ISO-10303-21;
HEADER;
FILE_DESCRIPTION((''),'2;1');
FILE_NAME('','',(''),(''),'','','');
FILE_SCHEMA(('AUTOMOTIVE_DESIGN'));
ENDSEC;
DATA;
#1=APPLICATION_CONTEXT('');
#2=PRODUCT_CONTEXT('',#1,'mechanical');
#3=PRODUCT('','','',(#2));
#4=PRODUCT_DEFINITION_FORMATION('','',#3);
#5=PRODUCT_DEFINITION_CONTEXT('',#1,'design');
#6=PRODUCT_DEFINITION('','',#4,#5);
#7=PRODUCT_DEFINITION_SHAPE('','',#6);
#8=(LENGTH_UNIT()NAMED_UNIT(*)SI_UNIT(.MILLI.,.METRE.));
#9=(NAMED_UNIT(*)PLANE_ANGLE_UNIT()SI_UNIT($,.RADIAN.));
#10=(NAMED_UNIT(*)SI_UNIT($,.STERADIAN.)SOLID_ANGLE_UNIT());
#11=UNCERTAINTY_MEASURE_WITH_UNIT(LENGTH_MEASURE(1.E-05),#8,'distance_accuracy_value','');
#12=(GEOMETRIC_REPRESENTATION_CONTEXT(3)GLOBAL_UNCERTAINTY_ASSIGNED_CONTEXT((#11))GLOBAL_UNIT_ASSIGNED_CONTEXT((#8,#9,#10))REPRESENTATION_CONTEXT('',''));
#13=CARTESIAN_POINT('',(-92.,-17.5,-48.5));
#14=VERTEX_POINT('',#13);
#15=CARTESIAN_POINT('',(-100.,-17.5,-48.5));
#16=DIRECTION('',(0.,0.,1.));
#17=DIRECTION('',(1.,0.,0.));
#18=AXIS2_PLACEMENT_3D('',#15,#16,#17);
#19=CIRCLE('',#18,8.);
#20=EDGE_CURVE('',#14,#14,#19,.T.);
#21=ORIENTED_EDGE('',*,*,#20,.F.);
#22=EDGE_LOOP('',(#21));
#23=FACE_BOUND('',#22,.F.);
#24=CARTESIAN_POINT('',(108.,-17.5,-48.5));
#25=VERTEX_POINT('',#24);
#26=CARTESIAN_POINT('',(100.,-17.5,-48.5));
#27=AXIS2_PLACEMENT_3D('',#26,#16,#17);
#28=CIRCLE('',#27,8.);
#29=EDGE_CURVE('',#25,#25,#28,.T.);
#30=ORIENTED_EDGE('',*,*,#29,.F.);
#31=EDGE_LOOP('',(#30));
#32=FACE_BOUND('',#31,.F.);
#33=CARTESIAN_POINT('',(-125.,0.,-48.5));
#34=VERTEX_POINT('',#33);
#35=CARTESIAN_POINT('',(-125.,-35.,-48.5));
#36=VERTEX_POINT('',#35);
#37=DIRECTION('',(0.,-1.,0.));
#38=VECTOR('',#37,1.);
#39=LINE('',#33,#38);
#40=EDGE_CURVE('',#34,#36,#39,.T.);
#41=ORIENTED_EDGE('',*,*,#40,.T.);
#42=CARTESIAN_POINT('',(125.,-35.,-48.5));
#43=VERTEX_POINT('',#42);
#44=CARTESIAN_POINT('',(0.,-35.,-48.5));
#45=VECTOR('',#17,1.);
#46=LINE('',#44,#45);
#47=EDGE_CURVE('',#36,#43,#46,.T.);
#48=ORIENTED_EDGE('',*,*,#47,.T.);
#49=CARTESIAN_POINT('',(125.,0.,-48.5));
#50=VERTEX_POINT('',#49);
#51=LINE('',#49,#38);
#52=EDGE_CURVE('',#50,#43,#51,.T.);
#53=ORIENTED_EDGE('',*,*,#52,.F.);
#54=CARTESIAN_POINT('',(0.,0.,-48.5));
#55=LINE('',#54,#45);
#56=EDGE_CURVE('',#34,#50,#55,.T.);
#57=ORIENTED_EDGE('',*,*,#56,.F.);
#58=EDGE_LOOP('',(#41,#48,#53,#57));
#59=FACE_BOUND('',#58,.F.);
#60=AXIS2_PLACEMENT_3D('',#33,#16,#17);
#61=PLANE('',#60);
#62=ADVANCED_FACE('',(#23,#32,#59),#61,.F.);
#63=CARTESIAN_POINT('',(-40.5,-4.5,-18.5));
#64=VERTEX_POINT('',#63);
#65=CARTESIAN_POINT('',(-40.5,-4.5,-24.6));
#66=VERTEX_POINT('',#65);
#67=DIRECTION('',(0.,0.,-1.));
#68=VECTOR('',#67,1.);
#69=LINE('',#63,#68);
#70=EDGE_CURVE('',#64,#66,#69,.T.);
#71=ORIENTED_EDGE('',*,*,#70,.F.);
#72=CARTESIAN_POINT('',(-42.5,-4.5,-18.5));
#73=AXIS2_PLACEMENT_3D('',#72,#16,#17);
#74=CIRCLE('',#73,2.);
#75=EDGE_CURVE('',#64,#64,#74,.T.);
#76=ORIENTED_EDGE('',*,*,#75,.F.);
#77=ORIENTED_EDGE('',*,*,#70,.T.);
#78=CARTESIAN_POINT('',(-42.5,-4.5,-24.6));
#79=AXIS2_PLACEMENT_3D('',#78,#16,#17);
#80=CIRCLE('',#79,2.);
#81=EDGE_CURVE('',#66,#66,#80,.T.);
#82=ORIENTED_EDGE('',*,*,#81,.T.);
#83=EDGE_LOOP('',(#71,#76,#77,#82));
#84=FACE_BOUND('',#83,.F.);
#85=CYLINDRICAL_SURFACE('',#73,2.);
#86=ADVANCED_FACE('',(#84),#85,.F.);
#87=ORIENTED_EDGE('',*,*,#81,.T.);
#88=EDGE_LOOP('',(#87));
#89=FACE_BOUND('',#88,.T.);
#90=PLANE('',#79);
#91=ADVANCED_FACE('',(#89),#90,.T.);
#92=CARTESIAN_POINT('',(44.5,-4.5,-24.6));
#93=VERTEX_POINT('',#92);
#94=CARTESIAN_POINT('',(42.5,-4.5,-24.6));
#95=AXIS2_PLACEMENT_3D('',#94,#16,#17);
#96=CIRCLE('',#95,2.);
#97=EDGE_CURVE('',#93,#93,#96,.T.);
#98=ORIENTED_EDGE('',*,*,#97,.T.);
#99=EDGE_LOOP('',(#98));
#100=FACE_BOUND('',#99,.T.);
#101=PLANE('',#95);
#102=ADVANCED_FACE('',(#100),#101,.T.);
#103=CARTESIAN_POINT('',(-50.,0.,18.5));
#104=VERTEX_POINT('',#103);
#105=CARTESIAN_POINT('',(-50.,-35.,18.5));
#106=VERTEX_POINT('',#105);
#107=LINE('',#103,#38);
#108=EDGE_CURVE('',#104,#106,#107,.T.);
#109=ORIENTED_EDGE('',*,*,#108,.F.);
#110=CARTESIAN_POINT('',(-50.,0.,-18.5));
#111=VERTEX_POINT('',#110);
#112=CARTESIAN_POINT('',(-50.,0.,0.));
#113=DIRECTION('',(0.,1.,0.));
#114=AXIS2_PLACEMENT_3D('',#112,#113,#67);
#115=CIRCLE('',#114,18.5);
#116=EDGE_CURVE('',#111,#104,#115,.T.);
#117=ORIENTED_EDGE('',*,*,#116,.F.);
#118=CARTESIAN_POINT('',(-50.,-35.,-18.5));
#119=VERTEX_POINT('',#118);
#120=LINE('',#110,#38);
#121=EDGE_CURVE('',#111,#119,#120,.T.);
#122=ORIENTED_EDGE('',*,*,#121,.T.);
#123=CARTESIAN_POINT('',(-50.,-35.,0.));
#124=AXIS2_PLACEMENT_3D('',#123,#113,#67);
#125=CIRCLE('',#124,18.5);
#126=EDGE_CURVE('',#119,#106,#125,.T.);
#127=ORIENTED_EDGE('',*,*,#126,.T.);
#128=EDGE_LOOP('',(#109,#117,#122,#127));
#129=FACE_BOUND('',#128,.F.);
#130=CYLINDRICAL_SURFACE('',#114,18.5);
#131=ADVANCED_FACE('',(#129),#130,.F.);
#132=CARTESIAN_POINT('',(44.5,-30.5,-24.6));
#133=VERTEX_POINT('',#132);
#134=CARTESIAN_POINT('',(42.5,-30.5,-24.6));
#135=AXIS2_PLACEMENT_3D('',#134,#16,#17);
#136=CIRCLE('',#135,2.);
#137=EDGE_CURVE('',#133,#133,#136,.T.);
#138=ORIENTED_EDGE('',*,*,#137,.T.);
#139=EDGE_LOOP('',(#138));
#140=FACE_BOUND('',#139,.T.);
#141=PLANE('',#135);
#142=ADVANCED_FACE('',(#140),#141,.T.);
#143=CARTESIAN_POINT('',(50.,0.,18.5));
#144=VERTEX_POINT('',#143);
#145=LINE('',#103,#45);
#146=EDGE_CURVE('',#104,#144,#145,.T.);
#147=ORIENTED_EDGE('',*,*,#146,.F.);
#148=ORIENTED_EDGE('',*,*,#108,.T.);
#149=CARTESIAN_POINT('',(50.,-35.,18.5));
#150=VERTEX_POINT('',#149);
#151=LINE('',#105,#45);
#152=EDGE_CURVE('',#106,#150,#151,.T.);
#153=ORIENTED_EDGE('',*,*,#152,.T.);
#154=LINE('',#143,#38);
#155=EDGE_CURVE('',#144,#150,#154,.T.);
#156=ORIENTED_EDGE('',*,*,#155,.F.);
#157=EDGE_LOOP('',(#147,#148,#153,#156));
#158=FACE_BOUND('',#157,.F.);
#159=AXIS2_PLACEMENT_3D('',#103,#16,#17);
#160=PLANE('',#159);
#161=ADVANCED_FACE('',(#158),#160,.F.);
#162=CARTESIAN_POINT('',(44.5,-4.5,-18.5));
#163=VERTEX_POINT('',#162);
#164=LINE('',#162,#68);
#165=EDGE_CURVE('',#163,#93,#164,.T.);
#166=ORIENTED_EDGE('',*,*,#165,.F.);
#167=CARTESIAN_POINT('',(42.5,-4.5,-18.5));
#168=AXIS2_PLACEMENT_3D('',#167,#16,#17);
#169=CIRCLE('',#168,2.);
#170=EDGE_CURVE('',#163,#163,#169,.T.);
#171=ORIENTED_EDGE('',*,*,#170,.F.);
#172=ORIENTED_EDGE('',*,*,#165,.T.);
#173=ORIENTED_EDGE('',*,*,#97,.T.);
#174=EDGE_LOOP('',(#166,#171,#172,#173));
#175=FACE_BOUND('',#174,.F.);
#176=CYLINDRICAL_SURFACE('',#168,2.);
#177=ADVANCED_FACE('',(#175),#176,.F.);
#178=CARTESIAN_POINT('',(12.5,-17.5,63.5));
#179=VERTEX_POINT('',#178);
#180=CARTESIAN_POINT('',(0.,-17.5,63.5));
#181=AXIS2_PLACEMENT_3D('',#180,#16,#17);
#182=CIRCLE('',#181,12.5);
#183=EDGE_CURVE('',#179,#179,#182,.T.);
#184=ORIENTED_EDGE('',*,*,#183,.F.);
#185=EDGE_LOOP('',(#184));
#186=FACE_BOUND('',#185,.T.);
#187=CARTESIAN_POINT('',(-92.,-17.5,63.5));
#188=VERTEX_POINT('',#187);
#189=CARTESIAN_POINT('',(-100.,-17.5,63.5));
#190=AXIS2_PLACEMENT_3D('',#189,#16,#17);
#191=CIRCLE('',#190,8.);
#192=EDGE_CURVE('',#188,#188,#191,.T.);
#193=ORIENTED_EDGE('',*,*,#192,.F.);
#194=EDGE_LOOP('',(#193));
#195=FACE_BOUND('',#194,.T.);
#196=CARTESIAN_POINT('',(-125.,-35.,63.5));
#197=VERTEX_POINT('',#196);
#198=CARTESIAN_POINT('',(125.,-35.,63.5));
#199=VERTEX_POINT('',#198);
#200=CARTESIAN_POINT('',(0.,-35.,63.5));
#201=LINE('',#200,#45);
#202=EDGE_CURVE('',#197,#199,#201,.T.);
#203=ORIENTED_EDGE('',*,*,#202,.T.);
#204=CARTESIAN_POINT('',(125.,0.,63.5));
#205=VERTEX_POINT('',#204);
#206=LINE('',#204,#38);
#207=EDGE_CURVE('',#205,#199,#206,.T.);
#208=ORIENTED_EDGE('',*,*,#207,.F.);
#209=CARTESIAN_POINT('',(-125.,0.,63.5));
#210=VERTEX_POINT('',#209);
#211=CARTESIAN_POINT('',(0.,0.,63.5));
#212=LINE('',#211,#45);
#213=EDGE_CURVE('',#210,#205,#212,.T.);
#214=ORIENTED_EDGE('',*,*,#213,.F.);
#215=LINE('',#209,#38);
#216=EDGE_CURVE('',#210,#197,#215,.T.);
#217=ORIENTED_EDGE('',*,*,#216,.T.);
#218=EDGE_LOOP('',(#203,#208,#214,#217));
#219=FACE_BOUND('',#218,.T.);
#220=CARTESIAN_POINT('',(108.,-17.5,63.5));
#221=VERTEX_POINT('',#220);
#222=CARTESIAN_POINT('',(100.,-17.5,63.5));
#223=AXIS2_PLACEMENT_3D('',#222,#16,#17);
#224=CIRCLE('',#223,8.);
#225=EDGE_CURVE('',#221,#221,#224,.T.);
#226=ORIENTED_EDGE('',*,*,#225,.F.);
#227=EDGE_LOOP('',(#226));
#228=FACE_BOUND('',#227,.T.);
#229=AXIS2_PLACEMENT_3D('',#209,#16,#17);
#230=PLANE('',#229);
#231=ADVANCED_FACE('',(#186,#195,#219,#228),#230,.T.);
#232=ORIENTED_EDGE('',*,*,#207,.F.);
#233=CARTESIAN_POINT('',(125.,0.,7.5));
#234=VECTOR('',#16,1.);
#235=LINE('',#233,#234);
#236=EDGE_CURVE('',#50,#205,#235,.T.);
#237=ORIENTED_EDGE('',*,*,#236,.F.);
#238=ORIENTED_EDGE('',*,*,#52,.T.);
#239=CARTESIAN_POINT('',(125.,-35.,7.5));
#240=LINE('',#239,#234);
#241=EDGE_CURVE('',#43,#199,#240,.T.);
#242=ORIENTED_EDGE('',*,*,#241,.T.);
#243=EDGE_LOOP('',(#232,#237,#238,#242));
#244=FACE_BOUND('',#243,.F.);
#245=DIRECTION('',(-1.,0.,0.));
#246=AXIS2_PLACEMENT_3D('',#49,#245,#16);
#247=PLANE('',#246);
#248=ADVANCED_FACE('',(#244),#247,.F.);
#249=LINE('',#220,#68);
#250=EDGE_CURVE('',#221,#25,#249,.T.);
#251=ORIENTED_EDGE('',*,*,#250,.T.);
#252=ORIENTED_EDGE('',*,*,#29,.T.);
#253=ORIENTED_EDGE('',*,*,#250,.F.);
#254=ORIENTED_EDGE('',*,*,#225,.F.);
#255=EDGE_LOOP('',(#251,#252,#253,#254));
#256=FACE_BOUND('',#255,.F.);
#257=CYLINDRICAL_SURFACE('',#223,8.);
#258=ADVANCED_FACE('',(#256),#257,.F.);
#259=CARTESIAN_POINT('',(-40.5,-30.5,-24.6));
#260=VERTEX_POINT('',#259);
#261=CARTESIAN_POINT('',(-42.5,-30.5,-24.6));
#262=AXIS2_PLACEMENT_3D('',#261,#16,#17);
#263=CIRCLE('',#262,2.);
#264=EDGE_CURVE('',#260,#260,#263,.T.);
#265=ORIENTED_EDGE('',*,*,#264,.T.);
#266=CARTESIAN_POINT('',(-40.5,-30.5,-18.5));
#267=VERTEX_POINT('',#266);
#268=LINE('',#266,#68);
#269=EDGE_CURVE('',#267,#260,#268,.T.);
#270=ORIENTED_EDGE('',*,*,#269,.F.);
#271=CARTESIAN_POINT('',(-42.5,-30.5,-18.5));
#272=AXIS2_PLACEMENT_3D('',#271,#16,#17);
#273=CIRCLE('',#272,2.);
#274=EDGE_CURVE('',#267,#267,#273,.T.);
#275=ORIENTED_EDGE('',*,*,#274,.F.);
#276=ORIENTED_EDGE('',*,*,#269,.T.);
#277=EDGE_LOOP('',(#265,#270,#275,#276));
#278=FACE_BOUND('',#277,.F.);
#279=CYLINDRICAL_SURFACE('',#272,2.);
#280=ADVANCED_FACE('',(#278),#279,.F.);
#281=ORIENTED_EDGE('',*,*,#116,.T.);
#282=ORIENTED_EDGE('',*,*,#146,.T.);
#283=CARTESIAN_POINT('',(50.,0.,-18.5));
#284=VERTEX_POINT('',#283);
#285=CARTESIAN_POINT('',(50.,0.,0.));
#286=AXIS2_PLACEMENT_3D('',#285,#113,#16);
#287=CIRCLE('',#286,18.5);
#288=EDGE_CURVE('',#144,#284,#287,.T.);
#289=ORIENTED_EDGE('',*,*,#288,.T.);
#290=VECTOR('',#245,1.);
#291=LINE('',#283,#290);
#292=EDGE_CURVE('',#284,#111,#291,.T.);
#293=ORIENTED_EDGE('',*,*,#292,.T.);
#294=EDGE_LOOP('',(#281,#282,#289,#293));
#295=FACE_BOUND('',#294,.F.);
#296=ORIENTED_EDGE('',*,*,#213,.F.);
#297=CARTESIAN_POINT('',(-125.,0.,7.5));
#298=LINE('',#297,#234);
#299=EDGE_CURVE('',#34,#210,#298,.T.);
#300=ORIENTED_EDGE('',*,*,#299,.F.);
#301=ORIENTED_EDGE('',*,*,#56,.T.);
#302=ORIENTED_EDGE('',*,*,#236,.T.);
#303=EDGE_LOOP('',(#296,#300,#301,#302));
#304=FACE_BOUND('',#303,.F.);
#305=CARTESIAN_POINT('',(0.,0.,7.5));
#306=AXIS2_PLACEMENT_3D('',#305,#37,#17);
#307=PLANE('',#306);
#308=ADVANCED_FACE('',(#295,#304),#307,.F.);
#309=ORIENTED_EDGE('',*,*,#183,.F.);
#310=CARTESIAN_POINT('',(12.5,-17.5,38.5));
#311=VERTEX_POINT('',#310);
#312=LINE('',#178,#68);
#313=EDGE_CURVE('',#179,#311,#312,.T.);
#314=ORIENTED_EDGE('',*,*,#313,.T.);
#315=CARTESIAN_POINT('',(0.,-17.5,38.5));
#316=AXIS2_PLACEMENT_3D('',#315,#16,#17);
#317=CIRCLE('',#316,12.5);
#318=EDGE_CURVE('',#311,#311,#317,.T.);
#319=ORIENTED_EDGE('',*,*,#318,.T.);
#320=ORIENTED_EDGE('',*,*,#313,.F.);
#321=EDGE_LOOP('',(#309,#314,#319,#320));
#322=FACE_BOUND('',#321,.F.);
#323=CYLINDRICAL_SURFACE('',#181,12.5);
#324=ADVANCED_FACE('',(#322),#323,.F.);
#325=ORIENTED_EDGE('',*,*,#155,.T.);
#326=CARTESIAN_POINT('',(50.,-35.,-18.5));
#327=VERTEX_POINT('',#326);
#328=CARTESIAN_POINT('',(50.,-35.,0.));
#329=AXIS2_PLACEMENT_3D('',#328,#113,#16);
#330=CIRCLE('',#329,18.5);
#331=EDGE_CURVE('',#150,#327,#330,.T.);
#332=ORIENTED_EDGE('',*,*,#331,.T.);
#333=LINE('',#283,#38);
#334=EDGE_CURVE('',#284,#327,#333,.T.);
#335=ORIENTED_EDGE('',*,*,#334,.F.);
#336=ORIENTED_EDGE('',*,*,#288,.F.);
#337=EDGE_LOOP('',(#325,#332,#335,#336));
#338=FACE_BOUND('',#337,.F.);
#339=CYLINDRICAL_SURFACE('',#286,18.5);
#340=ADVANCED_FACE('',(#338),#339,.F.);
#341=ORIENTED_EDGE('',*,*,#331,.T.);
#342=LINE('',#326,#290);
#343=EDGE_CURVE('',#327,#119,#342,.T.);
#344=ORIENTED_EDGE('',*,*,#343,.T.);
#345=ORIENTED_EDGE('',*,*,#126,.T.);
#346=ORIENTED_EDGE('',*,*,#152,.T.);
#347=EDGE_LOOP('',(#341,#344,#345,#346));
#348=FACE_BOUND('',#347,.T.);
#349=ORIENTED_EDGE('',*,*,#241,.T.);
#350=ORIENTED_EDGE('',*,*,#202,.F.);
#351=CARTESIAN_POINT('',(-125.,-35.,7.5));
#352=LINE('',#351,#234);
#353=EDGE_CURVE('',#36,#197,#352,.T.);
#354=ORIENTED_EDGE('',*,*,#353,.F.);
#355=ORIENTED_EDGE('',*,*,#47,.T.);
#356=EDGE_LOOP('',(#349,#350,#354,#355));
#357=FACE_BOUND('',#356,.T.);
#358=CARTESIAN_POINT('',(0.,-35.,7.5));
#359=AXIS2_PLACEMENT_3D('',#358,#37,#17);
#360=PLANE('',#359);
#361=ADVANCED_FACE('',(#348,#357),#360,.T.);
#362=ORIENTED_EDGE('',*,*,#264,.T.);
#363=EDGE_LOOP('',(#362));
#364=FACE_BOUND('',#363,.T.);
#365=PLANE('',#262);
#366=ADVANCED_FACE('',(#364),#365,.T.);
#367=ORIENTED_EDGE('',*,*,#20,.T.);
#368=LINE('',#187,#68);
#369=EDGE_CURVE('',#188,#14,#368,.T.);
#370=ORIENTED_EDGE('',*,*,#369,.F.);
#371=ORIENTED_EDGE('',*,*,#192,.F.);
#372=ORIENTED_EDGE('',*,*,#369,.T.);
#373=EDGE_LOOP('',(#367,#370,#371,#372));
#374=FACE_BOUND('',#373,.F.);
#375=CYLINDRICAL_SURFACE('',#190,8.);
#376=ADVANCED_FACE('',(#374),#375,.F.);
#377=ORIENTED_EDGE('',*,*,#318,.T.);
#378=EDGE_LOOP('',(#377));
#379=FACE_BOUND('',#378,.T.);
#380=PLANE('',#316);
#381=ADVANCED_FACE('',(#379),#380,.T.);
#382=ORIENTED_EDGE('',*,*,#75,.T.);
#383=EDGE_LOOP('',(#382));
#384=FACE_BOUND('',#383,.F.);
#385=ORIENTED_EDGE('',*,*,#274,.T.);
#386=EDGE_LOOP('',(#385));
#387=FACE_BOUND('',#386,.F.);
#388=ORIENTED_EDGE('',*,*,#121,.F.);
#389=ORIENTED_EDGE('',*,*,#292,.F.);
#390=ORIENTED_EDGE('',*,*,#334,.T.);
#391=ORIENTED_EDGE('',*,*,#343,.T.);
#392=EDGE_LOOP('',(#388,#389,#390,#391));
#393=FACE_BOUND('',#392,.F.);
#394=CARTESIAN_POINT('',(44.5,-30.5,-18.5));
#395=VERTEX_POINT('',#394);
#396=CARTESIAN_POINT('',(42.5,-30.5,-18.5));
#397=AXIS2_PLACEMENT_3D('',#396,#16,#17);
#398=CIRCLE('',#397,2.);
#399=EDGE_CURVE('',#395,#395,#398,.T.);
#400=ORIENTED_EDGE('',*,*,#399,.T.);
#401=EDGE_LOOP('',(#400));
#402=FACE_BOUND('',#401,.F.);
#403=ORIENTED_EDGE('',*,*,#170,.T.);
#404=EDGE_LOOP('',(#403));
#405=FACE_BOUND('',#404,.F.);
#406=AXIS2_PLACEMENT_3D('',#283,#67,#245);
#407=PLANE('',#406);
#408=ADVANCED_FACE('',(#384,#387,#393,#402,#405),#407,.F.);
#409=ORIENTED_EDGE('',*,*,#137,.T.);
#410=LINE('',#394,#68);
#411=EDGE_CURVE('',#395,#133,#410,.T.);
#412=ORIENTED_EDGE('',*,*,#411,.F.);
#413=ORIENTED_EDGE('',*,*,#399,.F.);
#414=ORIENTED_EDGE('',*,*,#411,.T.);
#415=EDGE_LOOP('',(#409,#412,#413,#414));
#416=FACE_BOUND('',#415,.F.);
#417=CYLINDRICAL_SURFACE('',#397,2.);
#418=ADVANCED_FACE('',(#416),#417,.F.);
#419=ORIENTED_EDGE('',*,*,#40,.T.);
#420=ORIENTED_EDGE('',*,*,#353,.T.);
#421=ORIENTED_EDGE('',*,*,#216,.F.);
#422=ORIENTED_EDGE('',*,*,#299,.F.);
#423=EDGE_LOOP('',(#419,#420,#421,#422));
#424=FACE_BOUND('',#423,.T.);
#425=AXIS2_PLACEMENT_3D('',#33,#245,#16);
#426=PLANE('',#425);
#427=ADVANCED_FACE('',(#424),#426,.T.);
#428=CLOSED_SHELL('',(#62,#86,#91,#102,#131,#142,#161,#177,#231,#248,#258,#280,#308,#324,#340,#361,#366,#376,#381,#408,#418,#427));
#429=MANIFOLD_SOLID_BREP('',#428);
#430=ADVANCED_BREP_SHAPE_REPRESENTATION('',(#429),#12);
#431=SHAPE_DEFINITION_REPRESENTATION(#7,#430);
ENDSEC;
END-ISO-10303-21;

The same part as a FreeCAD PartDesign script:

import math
import FreeCAD as App
import Part
import Sketcher
Q = App.Units.Quantity


def add_polygon(sketch, points):
    """Adds a closed chain of lines whose ends are joined by coincident constraints."""
    first, n = sketch.GeometryCount, len(points)
    for a, b in zip(points, points[1:] + points[:1]):
        sketch.addGeometry(Part.LineSegment(App.Vector(*a, 0), App.Vector(*b, 0)), False)
    for i in range(n):
        sketch.addConstraint(Sketcher.Constraint("Coincident", first + i, 2, first + (i + 1) % n, 1))

doc = App.newDocument("Part")
body = doc.addObject("PartDesign::Body", "Body")

# Sketch on XZ plane
sketch1 = doc.addObject("Sketcher::SketchObject", "Sketch")
body.addObject(sketch1)
sketch1.AttachmentSupport = (doc.XZ_Plane, [""])
sketch1.MapMode = "FlatFace"
add_polygon(sketch1, [(-125, 63.5), (-125, -48.5), (125, -48.5), (125, 63.5)])  # lines 0-3
sketch1.addGeometry(Part.ArcOfCircle(Part.Circle(App.Vector(50, 0, 0), App.Vector(0, 0, 1), 18.5), math.radians(-90), math.radians(90)), False)  # 4
sketch1.addGeometry(Part.LineSegment(App.Vector(50, -18.5, 0), App.Vector(-50, -18.5, 0)), False)  # 5
sketch1.addGeometry(Part.ArcOfCircle(Part.Circle(App.Vector(-50, 0, 0), App.Vector(0, 0, 1), 18.5), math.radians(90), math.radians(270)), False)  # 6
sketch1.addGeometry(Part.LineSegment(App.Vector(-50, 18.5, 0), App.Vector(50, 18.5, 0)), False)  # 7
sketch1.addConstraint([
    Sketcher.Constraint("Tangent", 4, 1, 5, 1),
    Sketcher.Constraint("Tangent", 5, 2, 6, 2),
    Sketcher.Constraint("Tangent", 6, 1, 7, 1),
    Sketcher.Constraint("Tangent", 7, 2, 4, 2),
    Sketcher.Constraint("Vertical", 0),
    Sketcher.Constraint("Horizontal", 1),
    Sketcher.Constraint("Vertical", 2),
    Sketcher.Constraint("Horizontal", 3),
    Sketcher.Constraint("Horizontal", 5),
    Sketcher.Constraint("Horizontal", 7),
    Sketcher.Constraint("Symmetric", 4, 3, 6, 3, -1, 1),
    Sketcher.Constraint("Radius", 4, Q("18.5 mm")),
    Sketcher.Constraint("DistanceX", 1, 1, 1, 2, Q("250 mm")),
    Sketcher.Constraint("DistanceX", 5, 2, 5, 1, Q("100 mm")),
    Sketcher.Constraint("DistanceY", 0, 2, 0, 1, Q("112 mm")),
    Sketcher.Constraint("DistanceX", 0, 2, -1, 1, Q("125 mm")),
    Sketcher.Constraint("DistanceY", 1, 2, 4, 1, Q("30 mm")),
])
pad1 = doc.addObject("PartDesign::Pad", "Pad")
body.addObject(pad1)
pad1.Profile = sketch1
pad1.Length = 35

# Sketch on XY plane
sketch2 = doc.addObject("Sketcher::SketchObject", "Sketch001")
body.addObject(sketch2)
sketch2.AttachmentSupport = (doc.XY_Plane, [""])
sketch2.MapMode = "FlatFace"
sketch2.AttachmentOffset = App.Placement(App.Vector(0, 0, 63.5), App.Rotation())
sketch2.addGeometry([
    Part.Circle(App.Vector(-100, -17.5, 0), App.Vector(0, 0, 1), 8),
    Part.Circle(App.Vector(100, -17.5, 0), App.Vector(0, 0, 1), 8),
], False)
sketch2.addConstraint([
    Sketcher.Constraint("Equal", 0, 1),
    Sketcher.Constraint("Symmetric", 0, 3, 1, 3, -2),
    Sketcher.Constraint("Diameter", 0, Q("16 mm")),
    Sketcher.Constraint("DistanceX", 0, 3, -1, 1, Q("100 mm")),
    Sketcher.Constraint("DistanceY", 0, 3, -1, 1, Q("17.5 mm")),
])
pocket1 = doc.addObject("PartDesign::Pocket", "Pocket")
body.addObject(pocket1)
pocket1.Profile = sketch2
pocket1.Length = 400

# Sketch on XY plane
sketch3 = doc.addObject("Sketcher::SketchObject", "Sketch002")
body.addObject(sketch3)
sketch3.AttachmentSupport = (doc.XY_Plane, [""])
sketch3.MapMode = "FlatFace"
sketch3.AttachmentOffset = App.Placement(App.Vector(0, 0, 63.5), App.Rotation())
sketch3.addGeometry(Part.Circle(App.Vector(0, -17.5, 0), App.Vector(0, 0, 1), 12.5), False)
sketch3.addConstraint([
    Sketcher.Constraint("PointOnObject", 0, 3, -2),
    Sketcher.Constraint("Diameter", 0, Q("25 mm")),
    Sketcher.Constraint("DistanceY", 0, 3, -1, 1, Q("17.5 mm")),
])
pocket2 = doc.addObject("PartDesign::Pocket", "Pocket001")
body.addObject(pocket2)
pocket2.Profile = sketch3
pocket2.Length = 25

# Sketch on XY plane
sketch4 = doc.addObject("Sketcher::SketchObject", "Sketch003")
body.addObject(sketch4)
sketch4.AttachmentSupport = (doc.XY_Plane, [""])
sketch4.MapMode = "FlatFace"
sketch4.AttachmentOffset = App.Placement(App.Vector(0, 0, -18.5), App.Rotation())
sketch4.addGeometry([
    Part.Circle(App.Vector(-42.5, -4.5, 0), App.Vector(0, 0, 1), 2),
    Part.Circle(App.Vector(-42.5, -30.5, 0), App.Vector(0, 0, 1), 2),
    Part.Circle(App.Vector(42.5, -4.5, 0), App.Vector(0, 0, 1), 2),
    Part.Circle(App.Vector(42.5, -30.5, 0), App.Vector(0, 0, 1), 2),
], False)
sketch4.addConstraint([
    Sketcher.Constraint("Equal", 0, 1),
    Sketcher.Constraint("Equal", 1, 2),
    Sketcher.Constraint("Equal", 2, 3),
    Sketcher.Constraint("Symmetric", 0, 3, 2, 3, -2),
    Sketcher.Constraint("Symmetric", 1, 3, 3, 3, -2),
    Sketcher.Constraint("Vertical", 0, 3, 1, 3),
    Sketcher.Constraint("Diameter", 0, Q("4 mm")),
    Sketcher.Constraint("DistanceY", 1, 3, 0, 3, Q("26 mm")),
    Sketcher.Constraint("DistanceX", 0, 3, 2, 3, Q("85 mm")),
    Sketcher.Constraint("DistanceY", 0, 3, -1, 1, Q("4.5 mm")),
])
pocket3 = doc.addObject("PartDesign::Pocket", "Pocket002")
body.addObject(pocket3)
pocket3.Profile = sketch4
pocket3.Length = 6.1

doc.recompute()
